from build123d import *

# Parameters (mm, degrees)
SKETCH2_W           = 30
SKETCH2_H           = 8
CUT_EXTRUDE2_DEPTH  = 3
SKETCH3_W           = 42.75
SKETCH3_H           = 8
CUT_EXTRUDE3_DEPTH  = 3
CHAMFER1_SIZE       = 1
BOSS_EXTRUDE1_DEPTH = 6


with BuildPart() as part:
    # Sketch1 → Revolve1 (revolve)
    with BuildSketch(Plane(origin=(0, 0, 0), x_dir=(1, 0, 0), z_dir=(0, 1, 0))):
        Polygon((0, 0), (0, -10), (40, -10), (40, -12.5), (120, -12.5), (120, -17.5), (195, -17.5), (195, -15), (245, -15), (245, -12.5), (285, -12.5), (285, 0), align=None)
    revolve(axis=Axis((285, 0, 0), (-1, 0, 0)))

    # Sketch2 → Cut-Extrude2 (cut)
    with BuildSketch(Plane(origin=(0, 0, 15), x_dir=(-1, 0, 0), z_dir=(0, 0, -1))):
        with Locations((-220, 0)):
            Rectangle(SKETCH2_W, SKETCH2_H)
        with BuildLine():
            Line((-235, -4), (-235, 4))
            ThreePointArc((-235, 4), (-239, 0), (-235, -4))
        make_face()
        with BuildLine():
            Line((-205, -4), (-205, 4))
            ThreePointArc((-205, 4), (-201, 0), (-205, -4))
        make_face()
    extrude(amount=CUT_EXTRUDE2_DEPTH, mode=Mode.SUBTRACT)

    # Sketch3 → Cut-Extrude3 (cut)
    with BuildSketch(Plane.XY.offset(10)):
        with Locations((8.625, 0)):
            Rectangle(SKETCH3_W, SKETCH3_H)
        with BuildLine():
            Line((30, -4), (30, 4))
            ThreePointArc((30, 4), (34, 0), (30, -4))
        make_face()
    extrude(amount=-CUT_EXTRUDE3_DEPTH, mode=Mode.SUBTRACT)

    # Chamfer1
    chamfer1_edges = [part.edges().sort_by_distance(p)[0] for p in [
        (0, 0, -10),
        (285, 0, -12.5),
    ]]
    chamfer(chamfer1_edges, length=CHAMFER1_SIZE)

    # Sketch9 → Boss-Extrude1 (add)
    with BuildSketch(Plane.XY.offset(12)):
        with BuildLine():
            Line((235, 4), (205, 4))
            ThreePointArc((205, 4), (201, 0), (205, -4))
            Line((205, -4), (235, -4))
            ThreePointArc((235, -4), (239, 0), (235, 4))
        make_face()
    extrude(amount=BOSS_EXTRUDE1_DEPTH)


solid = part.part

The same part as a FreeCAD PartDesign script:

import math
import FreeCAD as App
import Part
import Sketcher

V = App.Vector
Q = App.Units.Quantity


def edges_at(feature, points):
    """Names of the edges that pass closest to the given points."""
    edges = feature.Shape.Edges
    near = lambda p: min(range(len(edges)), key=lambda i: edges[i].distToShape(Part.Vertex(*p))[0])
    return sorted({f"Edge{near(p) + 1}" for p in points})


def add_polygon(sketch, points):
    """Adds a closed chain of lines whose ends are joined by coincident constraints."""
    first, n = sketch.GeometryCount, len(points)
    for a, b in zip(points, points[1:] + points[:1]):
        sketch.addGeometry(Part.LineSegment(App.Vector(*a, 0), App.Vector(*b, 0)), False)
    for i in range(n):
        sketch.addConstraint(Sketcher.Constraint("Coincident", first + i, 2, first + (i + 1) % n, 1))

doc = App.newDocument("Part")
params = doc.addObject("Spreadsheet::Sheet", "Params")
for row, (alias, value) in enumerate([
    ("sketch1_width", "40 mm"),
    ("sketch1_width2", "80 mm"),
    ("sketch1_width3", "75 mm"),
    ("sketch1_width4", "50 mm"),
    ("sketch1_height", "10 mm"),
    ("revolution_angle", "360 deg"),
    ("sketch2_radius", "4 mm"),
    ("sketch2_width", "30 mm"),
    ("pocket1_length", "3 mm"),
    ("sketch3_radius", "4 mm"),
    ("sketch3_width", "42.75 mm"),
    ("pocket2_length", "3 mm"),
    ("chamfer_size", "1 mm"),
    ("sketch4_radius", "4 mm"),
    ("sketch4_width", "30 mm"),
    ("pad1_length", "6 mm"),
], start=1):
    params.set(f"A{row}", alias)
    params.set(f"B{row}", "=" + value)
    params.setAlias(f"B{row}", alias)

body = doc.addObject("PartDesign::Body", "Body")

sketch1 = body.newObject("Sketcher::SketchObject", "Sketch")
sketch1.AttachmentSupport = (doc.getObject("XZ_Plane"), [""])
sketch1.MapMode = "FlatFace"
add_polygon(sketch1, [(0, 0), (0, 10), (40, 10), (40, 12.5), (120, 12.5), (120, 17.5), (195, 17.5), (195, 15), (245, 15), (245, 12.5), (285, 12.5), (285, 0)])
sketch1.addConstraint(Sketcher.Constraint("Vertical", 0))
sketch1.addConstraint(Sketcher.Constraint("Horizontal", 1))
sketch1.addConstraint(Sketcher.Constraint("Vertical", 2))
sketch1.addConstraint(Sketcher.Constraint("Horizontal", 3))
sketch1.addConstraint(Sketcher.Constraint("Vertical", 4))
sketch1.addConstraint(Sketcher.Constraint("Horizontal", 5))
sketch1.addConstraint(Sketcher.Constraint("Vertical", 6))
sketch1.addConstraint(Sketcher.Constraint("Horizontal", 7))
sketch1.addConstraint(Sketcher.Constraint("Vertical", 8))
sketch1.addConstraint(Sketcher.Constraint("Horizontal", 9))
sketch1.addConstraint(Sketcher.Constraint("Vertical", 10))
sketch1.addConstraint(Sketcher.Constraint("Horizontal", 11))
sketch1.addConstraint(Sketcher.Constraint("Coincident", 11, 2, -1, 1))
sketch1.addConstraint(Sketcher.Constraint("Horizontal", 3, 2, 8, 2))
sketch1.addConstraint(Sketcher.Constraint("Equal", 1, 9))
sketch1.addConstraint(Sketcher.Constraint("Equal", 2, 6))
sketch1.addConstraint(Sketcher.Constraint("Equal", 6, 8))
sketch1.addConstraint(Sketcher.Constraint("DistanceX", 1, 1, 1, 2, Q("40 mm")))
sketch1.addConstraint(Sketcher.Constraint("DistanceX", 3, 1, 3, 2, Q("80 mm")))
sketch1.addConstraint(Sketcher.Constraint("DistanceX", 5, 1, 5, 2, Q("75 mm")))
sketch1.addConstraint(Sketcher.Constraint("DistanceX", 7, 1, 7, 2, Q("50 mm")))
sketch1.addConstraint(Sketcher.Constraint("DistanceY", 0, 1, 0, 2, Q("10 mm")))
sketch1.addConstraint(Sketcher.Constraint("DistanceY", 4, 1, 4, 2, Q("5 mm")))
sketch1.setExpression("Constraints[29]", "Params.sketch1_width")
sketch1.setExpression("Constraints[30]", "Params.sketch1_width2")
sketch1.setExpression("Constraints[31]", "Params.sketch1_width3")
sketch1.setExpression("Constraints[32]", "Params.sketch1_width4")
sketch1.setExpression("Constraints[33]", "Params.sketch1_height")
revolution = body.newObject("PartDesign::Revolution", "Revolution")
revolution.Profile = sketch1
revolution.ReferenceAxis = (sketch1, ["H_Axis"])
revolution.setExpression("Angle", "Params.revolution_angle")

sketch2 = body.newObject("Sketcher::SketchObject", "Sketch001")
sketch2.AttachmentSupport = (doc.getObject("XY_Plane"), [""])
sketch2.MapMode = "FlatFace"
sketch2.AttachmentOffset = App.Placement(V(0, 0, 15), App.Rotation())
sketch2.addGeometry(Part.LineSegment(V(235, -4, 0), V(205, -4, 0)), False)
sketch2.addGeometry(Part.ArcOfCircle(Part.Circle(V(205, 0, 0), V(0, 0, 1), 4), math.radians(90), math.radians(270)), False)
sketch2.addGeometry(Part.LineSegment(V(205, 4, 0), V(235, 4, 0)), False)
sketch2.addGeometry(Part.ArcOfCircle(Part.Circle(V(235, 0, 0), V(0, 0, 1), 4), math.radians(-90), math.radians(90)), False)
sketch2.addConstraint(Sketcher.Constraint("Tangent", 0, 2, 1, 2))
sketch2.addConstraint(Sketcher.Constraint("Tangent", 1, 1, 2, 1))
sketch2.addConstraint(Sketcher.Constraint("Tangent", 2, 2, 3, 2))
sketch2.addConstraint(Sketcher.Constraint("Tangent", 3, 1, 0, 1))
sketch2.addConstraint(Sketcher.Constraint("Horizontal", 0))
sketch2.addConstraint(Sketcher.Constraint("Horizontal", 2))
sketch2.addConstraint(Sketcher.Constraint("PointOnObject", 1, 3, -1))
sketch2.addConstraint(Sketcher.Constraint("Radius", 1, Q("4 mm")))
sketch2.addConstraint(Sketcher.Constraint("DistanceX", 0, 2, 0, 1, Q("30 mm")))
sketch2.addConstraint(Sketcher.Constraint("DistanceX", -1, 1, 1, 3, Q("205 mm")))
sketch2.setExpression("Constraints[7]", "Params.sketch2_radius")
sketch2.setExpression("Constraints[8]", "Params.sketch2_width")
pocket1 = body.newObject("PartDesign::Pocket", "Pocket")
pocket1.Profile = sketch2
pocket1.setExpression("Length", "Params.pocket1_length")

sketch3 = body.newObject("Sketcher::SketchObject", "Sketch002")
sketch3.AttachmentSupport = (doc.getObject("XY_Plane"), [""])
sketch3.MapMode = "FlatFace"
sketch3.AttachmentOffset = App.Placement(V(0, 0, 10), App.Rotation())
sketch3.addGeometry(Part.LineSegment(V(-12.8, 4, 0), V(-12.8, -4, 0)), False)
sketch3.addGeometry(Part.LineSegment(V(-12.8, -4, 0), V(30, -4, 0)), False)
sketch3.addGeometry(Part.ArcOfCircle(Part.Circle(V(30, 0, 0), V(0, 0, 1), 4), math.radians(-90), math.radians(90)), False)
sketch3.addGeometry(Part.LineSegment(V(30, 4, 0), V(-12.8, 4, 0)), False)
sketch3.addConstraint(Sketcher.Constraint("Coincident", 0, 2, 1, 1))
sketch3.addConstraint(Sketcher.Constraint("Tangent", 1, 2, 2, 1))
sketch3.addConstraint(Sketcher.Constraint("Tangent", 2, 2, 3, 1))
sketch3.addConstraint(Sketcher.Constraint("Coincident", 3, 2, 0, 1))
sketch3.addConstraint(Sketcher.Constraint("Vertical", 0))
sketch3.addConstraint(Sketcher.Constraint("Horizontal", 1))
sketch3.addConstraint(Sketcher.Constraint("Horizontal", 3))
sketch3.addConstraint(Sketcher.Constraint("PointOnObject", 2, 3, -1))
sketch3.addConstraint(Sketcher.Constraint("Radius", 2, Q("4 mm")))
sketch3.addConstraint(Sketcher.Constraint("DistanceX", -1, 1, 2, 3, Q("30 mm")))
sketch3.addConstraint(Sketcher.Constraint("DistanceX", 1, 1, 1, 2, Q("42.75 mm")))
sketch3.setExpression("Constraints[8]", "Params.sketch3_radius")
sketch3.setExpression("Constraints[10]", "Params.sketch3_width")
pocket2 = body.newObject("PartDesign::Pocket", "Pocket001")
pocket2.Profile = sketch3
pocket2.setExpression("Length", "Params.pocket2_length")
doc.recompute()

chamfer = body.newObject("PartDesign::Chamfer", "Chamfer")
chamfer.Base = (pocket2, edges_at(pocket2, [(0, 0, -10), (285, 0, -12.5)]))
chamfer.setExpression("Size", "Params.chamfer_size")

sketch4 = body.newObject("Sketcher::SketchObject", "Sketch003")
sketch4.AttachmentSupport = (doc.getObject("XY_Plane"), [""])
sketch4.MapMode = "FlatFace"
sketch4.AttachmentOffset = App.Placement(V(0, 0, 12), App.Rotation())
sketch4.addGeometry(Part.LineSegment(V(235, 4, 0), V(205, 4, 0)), False)
sketch4.addGeometry(Part.ArcOfCircle(Part.Circle(V(205, 0, 0), V(0, 0, 1), 4), math.radians(90), math.radians(270)), False)
sketch4.addGeometry(Part.LineSegment(V(205, -4, 0), V(235, -4, 0)), False)
sketch4.addGeometry(Part.ArcOfCircle(Part.Circle(V(235, 0, 0), V(0, 0, 1), 4), math.radians(-90), math.radians(90)), False)
sketch4.addConstraint(Sketcher.Constraint("Tangent", 0, 2, 1, 1))
sketch4.addConstraint(Sketcher.Constraint("Tangent", 1, 2, 2, 1))
sketch4.addConstraint(Sketcher.Constraint("Tangent", 2, 2, 3, 1))
sketch4.addConstraint(Sketcher.Constraint("Tangent", 3, 2, 0, 1))
sketch4.addConstraint(Sketcher.Constraint("Horizontal", 0))
sketch4.addConstraint(Sketcher.Constraint("Horizontal", 2))
sketch4.addConstraint(Sketcher.Constraint("PointOnObject", 1, 3, -1))
sketch4.addConstraint(Sketcher.Constraint("Radius", 1, Q("4 mm")))
sketch4.addConstraint(Sketcher.Constraint("DistanceX", 0, 2, 0, 1, Q("30 mm")))
sketch4.addConstraint(Sketcher.Constraint("DistanceX", -1, 1, 1, 3, Q("205 mm")))
sketch4.setExpression("Constraints[7]", "Params.sketch4_radius")
sketch4.setExpression("Constraints[8]", "Params.sketch4_width")
pad1 = body.newObject("PartDesign::Pad", "Pad")
pad1.Profile = sketch4
pad1.setExpression("Length", "Params.pad1_length")

doc.recompute()
